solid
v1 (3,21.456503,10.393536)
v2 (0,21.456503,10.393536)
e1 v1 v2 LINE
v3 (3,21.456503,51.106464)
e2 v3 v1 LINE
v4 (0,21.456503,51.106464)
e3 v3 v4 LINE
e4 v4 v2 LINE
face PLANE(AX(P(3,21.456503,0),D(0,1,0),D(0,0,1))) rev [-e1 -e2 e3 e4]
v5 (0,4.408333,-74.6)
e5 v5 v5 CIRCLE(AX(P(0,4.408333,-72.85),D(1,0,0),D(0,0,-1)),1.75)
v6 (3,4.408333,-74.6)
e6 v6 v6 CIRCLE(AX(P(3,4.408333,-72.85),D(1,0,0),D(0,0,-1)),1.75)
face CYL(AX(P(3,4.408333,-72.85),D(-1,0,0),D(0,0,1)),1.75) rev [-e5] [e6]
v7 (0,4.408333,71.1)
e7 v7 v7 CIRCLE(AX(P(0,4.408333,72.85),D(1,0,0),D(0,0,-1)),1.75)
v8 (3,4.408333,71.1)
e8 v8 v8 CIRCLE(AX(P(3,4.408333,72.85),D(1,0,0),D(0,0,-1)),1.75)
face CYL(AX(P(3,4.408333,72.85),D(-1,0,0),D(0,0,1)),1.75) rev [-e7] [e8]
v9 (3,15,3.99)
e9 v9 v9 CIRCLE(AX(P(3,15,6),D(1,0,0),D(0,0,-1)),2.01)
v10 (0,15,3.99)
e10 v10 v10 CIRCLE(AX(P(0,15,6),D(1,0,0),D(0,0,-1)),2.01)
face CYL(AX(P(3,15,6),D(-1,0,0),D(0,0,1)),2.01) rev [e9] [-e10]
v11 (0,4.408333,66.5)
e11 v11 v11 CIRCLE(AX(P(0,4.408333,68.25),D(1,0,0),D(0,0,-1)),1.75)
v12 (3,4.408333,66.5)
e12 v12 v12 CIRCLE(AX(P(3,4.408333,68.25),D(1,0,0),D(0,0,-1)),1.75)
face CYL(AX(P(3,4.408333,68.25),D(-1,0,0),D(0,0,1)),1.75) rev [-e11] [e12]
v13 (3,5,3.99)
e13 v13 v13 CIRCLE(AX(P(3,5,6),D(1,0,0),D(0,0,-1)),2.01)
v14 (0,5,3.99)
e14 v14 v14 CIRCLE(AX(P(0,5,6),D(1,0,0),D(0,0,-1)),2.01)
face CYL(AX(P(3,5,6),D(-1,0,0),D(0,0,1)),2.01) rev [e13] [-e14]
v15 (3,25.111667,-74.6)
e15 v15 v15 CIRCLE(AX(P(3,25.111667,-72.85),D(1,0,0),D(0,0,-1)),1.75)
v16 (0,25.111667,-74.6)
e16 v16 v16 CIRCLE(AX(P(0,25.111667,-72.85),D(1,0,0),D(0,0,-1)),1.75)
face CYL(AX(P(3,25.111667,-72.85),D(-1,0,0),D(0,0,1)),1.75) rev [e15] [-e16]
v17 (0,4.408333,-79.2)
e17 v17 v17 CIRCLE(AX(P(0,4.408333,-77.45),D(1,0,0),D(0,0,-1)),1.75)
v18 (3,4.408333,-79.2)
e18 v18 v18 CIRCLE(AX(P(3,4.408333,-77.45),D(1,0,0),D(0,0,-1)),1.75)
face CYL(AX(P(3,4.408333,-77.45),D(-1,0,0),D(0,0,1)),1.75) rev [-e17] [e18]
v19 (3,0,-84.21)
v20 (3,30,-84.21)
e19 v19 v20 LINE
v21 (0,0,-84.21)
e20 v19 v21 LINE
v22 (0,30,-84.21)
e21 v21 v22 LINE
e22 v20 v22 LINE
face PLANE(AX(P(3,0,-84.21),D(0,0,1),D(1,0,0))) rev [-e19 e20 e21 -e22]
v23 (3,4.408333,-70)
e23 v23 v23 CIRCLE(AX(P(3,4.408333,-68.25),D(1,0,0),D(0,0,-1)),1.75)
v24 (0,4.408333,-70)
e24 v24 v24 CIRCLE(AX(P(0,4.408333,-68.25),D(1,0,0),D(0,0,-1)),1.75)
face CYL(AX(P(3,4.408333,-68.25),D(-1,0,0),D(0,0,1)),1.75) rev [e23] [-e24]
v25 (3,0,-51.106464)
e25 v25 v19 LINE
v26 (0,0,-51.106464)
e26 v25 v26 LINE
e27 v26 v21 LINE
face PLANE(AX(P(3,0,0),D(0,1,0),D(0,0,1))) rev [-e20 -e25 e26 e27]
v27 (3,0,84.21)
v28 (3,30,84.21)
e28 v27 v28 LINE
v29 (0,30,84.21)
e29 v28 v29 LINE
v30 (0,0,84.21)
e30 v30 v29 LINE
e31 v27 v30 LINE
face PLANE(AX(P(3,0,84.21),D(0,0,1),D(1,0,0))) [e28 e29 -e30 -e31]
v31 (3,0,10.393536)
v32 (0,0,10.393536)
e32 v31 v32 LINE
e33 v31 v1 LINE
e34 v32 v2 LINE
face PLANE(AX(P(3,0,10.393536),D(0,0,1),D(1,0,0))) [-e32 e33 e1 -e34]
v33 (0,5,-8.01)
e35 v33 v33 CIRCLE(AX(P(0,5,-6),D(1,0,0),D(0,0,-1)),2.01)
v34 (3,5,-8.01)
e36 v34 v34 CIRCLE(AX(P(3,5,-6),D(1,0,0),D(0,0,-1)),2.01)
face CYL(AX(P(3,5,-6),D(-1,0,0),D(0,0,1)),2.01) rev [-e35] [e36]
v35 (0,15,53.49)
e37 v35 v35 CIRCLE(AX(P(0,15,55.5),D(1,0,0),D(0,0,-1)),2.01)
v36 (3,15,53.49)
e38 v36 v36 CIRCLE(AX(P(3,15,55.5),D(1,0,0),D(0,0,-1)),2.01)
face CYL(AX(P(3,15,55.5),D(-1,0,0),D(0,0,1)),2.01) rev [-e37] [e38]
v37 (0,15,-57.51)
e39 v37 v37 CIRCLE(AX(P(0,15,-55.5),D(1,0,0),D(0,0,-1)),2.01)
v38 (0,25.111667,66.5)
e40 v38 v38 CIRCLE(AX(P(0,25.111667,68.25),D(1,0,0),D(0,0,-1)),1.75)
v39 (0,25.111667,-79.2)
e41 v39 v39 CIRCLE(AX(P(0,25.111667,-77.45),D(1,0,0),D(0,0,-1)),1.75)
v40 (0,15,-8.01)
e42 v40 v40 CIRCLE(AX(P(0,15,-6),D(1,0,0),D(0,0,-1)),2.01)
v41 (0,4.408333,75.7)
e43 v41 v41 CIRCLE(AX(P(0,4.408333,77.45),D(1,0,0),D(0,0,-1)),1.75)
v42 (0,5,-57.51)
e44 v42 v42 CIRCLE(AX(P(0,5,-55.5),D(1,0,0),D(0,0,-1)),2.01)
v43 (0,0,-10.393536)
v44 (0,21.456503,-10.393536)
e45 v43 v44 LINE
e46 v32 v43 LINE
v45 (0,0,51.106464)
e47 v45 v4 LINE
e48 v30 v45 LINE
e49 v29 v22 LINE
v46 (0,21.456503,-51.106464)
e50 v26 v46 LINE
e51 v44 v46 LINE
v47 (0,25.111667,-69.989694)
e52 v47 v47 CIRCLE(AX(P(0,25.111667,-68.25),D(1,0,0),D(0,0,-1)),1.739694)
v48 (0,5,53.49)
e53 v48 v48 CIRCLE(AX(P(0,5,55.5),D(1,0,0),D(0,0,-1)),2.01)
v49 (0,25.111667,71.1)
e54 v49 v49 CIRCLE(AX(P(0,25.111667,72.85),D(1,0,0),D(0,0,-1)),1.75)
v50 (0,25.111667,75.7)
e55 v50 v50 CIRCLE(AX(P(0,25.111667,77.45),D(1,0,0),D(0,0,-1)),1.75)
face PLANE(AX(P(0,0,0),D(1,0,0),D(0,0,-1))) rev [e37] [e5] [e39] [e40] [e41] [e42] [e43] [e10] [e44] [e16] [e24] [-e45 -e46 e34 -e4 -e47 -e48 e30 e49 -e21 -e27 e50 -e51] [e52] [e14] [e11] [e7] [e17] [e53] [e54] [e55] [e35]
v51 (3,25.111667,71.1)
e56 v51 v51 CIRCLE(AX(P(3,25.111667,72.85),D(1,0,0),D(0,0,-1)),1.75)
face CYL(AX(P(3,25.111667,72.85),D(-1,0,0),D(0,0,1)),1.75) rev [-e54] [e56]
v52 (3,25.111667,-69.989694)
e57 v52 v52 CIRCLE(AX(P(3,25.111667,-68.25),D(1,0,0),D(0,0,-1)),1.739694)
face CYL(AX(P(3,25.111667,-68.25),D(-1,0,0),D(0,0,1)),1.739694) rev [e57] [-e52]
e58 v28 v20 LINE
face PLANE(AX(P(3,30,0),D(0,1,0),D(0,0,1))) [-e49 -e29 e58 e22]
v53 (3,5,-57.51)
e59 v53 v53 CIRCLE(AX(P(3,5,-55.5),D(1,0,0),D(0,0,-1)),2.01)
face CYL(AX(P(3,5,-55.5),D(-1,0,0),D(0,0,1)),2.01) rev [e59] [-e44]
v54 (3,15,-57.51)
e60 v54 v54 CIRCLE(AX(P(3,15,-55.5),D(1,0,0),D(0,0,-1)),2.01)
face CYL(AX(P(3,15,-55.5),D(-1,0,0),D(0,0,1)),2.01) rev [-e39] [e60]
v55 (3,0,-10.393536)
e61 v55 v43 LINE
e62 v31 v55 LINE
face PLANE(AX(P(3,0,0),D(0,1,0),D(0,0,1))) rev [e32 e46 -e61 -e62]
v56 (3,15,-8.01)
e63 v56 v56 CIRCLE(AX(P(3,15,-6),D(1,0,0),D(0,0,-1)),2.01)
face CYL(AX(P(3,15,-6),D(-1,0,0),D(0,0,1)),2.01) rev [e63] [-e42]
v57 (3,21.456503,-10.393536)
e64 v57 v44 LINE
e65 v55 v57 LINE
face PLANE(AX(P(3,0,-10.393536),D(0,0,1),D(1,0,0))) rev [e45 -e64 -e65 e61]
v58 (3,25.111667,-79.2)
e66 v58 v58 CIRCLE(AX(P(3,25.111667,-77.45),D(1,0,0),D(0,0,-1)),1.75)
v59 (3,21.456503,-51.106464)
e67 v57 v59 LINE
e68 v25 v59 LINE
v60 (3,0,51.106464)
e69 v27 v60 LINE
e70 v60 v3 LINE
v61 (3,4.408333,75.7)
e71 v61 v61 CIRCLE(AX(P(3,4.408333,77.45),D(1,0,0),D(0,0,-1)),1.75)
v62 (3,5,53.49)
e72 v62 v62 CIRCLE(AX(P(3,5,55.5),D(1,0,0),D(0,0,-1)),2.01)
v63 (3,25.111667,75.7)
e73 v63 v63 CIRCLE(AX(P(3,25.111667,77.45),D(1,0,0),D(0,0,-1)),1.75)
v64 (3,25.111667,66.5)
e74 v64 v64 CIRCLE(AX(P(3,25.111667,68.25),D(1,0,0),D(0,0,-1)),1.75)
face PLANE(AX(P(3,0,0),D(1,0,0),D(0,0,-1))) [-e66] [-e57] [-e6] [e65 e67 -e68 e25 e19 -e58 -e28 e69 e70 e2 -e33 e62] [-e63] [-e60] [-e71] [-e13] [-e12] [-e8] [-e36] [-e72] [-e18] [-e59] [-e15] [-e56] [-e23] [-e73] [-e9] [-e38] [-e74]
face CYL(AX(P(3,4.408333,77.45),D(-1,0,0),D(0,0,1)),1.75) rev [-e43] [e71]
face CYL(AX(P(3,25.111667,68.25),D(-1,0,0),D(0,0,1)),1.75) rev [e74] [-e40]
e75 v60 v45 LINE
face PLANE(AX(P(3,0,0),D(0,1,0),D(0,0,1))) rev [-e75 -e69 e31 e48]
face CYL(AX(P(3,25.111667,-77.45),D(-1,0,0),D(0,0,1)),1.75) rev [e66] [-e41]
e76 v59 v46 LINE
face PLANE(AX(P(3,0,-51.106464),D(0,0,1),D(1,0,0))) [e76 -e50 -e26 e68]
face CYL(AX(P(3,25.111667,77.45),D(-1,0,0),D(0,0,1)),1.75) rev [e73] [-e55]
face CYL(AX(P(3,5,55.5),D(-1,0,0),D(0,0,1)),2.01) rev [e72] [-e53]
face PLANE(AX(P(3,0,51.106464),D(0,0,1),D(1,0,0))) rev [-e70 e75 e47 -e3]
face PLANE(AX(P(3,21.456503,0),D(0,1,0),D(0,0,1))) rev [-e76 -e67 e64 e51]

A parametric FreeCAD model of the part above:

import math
import FreeCAD as App
import Part
import Sketcher
from FreeCAD import Vector

doc = App.newDocument("Part")
params = doc.addObject("Spreadsheet::Sheet", "Params")
for row, (alias, value) in enumerate([
    ("sketch1_diameter", "3.5 mm"),
    ("sketch1_diameter2", "4.02 mm"),
    ("sketch1_width", "30 mm"),
    ("sketch1_height", "168.42 mm"),
    ("pad1_length", "3 mm"),
    ("pad2_length", "3 mm"),
], start=1):
    params.set(f"A{row}", alias)
    params.set(f"B{row}", "=" + value)
    params.setAlias(f"B{row}", alias)

body = doc.addObject("PartDesign::Body", "Body")

# Sketch on YZ plane
sketch1 = body.newObject("Sketcher::SketchObject", "Sketch")
sketch1.AttachmentSupport = (doc.getObject("YZ_Plane"), [""])
sketch1.MapMode = "FlatFace"
sketch1.addGeometry([
    Part.LineSegment(Vector(21.46, -51.11, 0), Vector(0, -51.11, 0)),  # 0
    Part.LineSegment(Vector(0, -51.11, 0), Vector(0, -84.21, 0)),  # 1
    Part.LineSegment(Vector(0, -84.21, 0), Vector(30, -84.21, 0)),  # 2
    Part.LineSegment(Vector(30, -84.21, 0), Vector(30, 84.21, 0)),  # 3
    Part.LineSegment(Vector(30, 84.21, 0), Vector(0, 84.21, 0)),  # 4
    Part.LineSegment(Vector(0, 84.21, 0), Vector(0, 51.11, 0)),  # 5
    Part.LineSegment(Vector(0, 51.11, 0), Vector(21.46, 51.11, 0)),  # 6
    Part.LineSegment(Vector(21.46, 51.11, 0), Vector(21.46, 10.39, 0)),  # 7
    Part.LineSegment(Vector(21.46, 10.39, 0), Vector(0, 10.39, 0)),  # 8
    Part.LineSegment(Vector(0, 10.39, 0), Vector(0, -10.39, 0)),  # 9
    Part.LineSegment(Vector(0, -10.39, 0), Vector(21.46, -10.39, 0)),  # 10
    Part.LineSegment(Vector(21.46, -10.39, 0), Vector(21.46, -51.11, 0)),  # 11
    Part.Circle(Vector(4.41, 77.45, 0), Vector(0, 0, 1), 1.75),  # 12
    Part.Circle(Vector(4.41, 72.85, 0), Vector(0, 0, 1), 1.75),  # 13
    Part.Circle(Vector(4.41, 68.25, 0), Vector(0, 0, 1), 1.75),  # 14
    Part.Circle(Vector(5, 55.5, 0), Vector(0, 0, 1), 2.01),  # 15
    Part.Circle(Vector(5, 6, 0), Vector(0, 0, 1), 2.01),  # 16
    Part.Circle(Vector(5, -6, 0), Vector(0, 0, 1), 2.01),  # 17
    Part.Circle(Vector(5, -55.5, 0), Vector(0, 0, 1), 2.01),  # 18
    Part.Circle(Vector(4.41, -68.25, 0), Vector(0, 0, 1), 1.75),  # 19
    Part.Circle(Vector(4.41, -72.85, 0), Vector(0, 0, 1), 1.75),  # 20
    Part.Circle(Vector(4.41, -77.45, 0), Vector(0, 0, 1), 1.75),  # 21
    Part.Circle(Vector(15, 55.5, 0), Vector(0, 0, 1), 2.01),  # 22
    Part.Circle(Vector(15, 6, 0), Vector(0, 0, 1), 2.01),  # 23
    Part.Circle(Vector(25.11, 77.45, 0), Vector(0, 0, 1), 1.75),  # 24
    Part.Circle(Vector(25.11, 72.85, 0), Vector(0, 0, 1), 1.75),  # 25
    Part.Circle(Vector(25.11, 68.25, 0), Vector(0, 0, 1), 1.75),  # 26
    Part.Circle(Vector(15, -6, 0), Vector(0, 0, 1), 2.01),  # 27
    Part.Circle(Vector(15, -55.5, 0), Vector(0, 0, 1), 2.01),  # 28
    Part.LineSegment(Vector(23.37, -68.25, 0), Vector(23.12, -68.25, 0)),  # 29
    Part.LineSegment(Vector(23.12, -68.25, 0), Vector(22.8, -66.79, 0)),  # 30
    Part.LineSegment(Vector(22.8, -66.79, 0), Vector(23.64, -67.32, 0)),  # 31
    Part.ArcOfCircle(Part.Circle(Vector(25.11, -68.25, 0), Vector(0, 0, 1), 1.74), math.radians(180), math.radians(508)),  # 32
    Part.Circle(Vector(25.11, -72.85, 0), Vector(0, 0, 1), 1.75),  # 33
    Part.Circle(Vector(25.11, -77.45, 0), Vector(0, 0, 1), 1.75),  # 34
], False)
sketch1.addConstraint([
    Sketcher.Constraint("Coincident", 0, 2, 1, 1),
    Sketcher.Constraint("Coincident", 1, 2, 2, 1),
    Sketcher.Constraint("Coincident", 2, 2, 3, 1),
    Sketcher.Constraint("Coincident", 3, 2, 4, 1),
    Sketcher.Constraint("Coincident", 4, 2, 5, 1),
    Sketcher.Constraint("Coincident", 5, 2, 6, 1),
    Sketcher.Constraint("Coincident", 6, 2, 7, 1),
    Sketcher.Constraint("Coincident", 7, 2, 8, 1),
    Sketcher.Constraint("Coincident", 8, 2, 9, 1),
    Sketcher.Constraint("Coincident", 9, 2, 10, 1),
    Sketcher.Constraint("Coincident", 10, 2, 11, 1),
    Sketcher.Constraint("Coincident", 11, 2, 0, 1),
    Sketcher.Constraint("Coincident", 29, 2, 30, 1),
    Sketcher.Constraint("Coincident", 30, 2, 31, 1),
    Sketcher.Constraint("Coincident", 31, 2, 32, 2),
    Sketcher.Constraint("Coincident", 32, 1, 29, 1),
    Sketcher.Constraint("Horizontal", 0),
    Sketcher.Constraint("Vertical", 1),
    Sketcher.Constraint("Horizontal", 2),
    Sketcher.Constraint("Vertical", 3),
    Sketcher.Constraint("Horizontal", 4),
    Sketcher.Constraint("Vertical", 5),
    Sketcher.Constraint("Horizontal", 6),
    Sketcher.Constraint("Vertical", 7),
    Sketcher.Constraint("Horizontal", 8),
    Sketcher.Constraint("Vertical", 9),
    Sketcher.Constraint("Horizontal", 10),
    Sketcher.Constraint("Vertical", 11),
    Sketcher.Constraint("Horizontal", 29),
    Sketcher.Constraint("Equal", 12, 13),
    Sketcher.Constraint("Equal", 13, 14),
    Sketcher.Constraint("Equal", 15, 16),
    Sketcher.Constraint("Equal", 16, 17),
    Sketcher.Constraint("Equal", 17, 18),
    Sketcher.Constraint("Equal", 14, 19),
    Sketcher.Constraint("Equal", 19, 20),
    Sketcher.Constraint("Equal", 20, 21),
    Sketcher.Constraint("Equal", 18, 22),
    Sketcher.Constraint("Equal", 22, 23),
    Sketcher.Constraint("Equal", 21, 24),
    Sketcher.Constraint("Equal", 24, 25),
    Sketcher.Constraint("Equal", 25, 26),
    Sketcher.Constraint("Equal", 23, 27),
    Sketcher.Constraint("Equal", 27, 28),
    Sketcher.Constraint("Equal", 26, 33),
    Sketcher.Constraint("Equal", 33, 34),
    Sketcher.Constraint("Symmetric", 1, 2, 4, 2, -1, 1),
    Sketcher.Constraint("Symmetric", 8, 2, 9, 2, -1, 1),
    Sketcher.Constraint("Symmetric", 16, 3, 17, 3, -1),
    Sketcher.Constraint("Symmetric", 15, 3, 18, 3, -1),
    Sketcher.Constraint("Symmetric", 14, 3, 19, 3, -1),
    Sketcher.Constraint("Symmetric", 13, 3, 20, 3, -1),
    Sketcher.Constraint("Symmetric", 12, 3, 21, 3, -1),
    Sketcher.Constraint("Symmetric", 23, 3, 27, 3, -1),
    Sketcher.Constraint("Symmetric", 22, 3, 28, 3, -1),
    Sketcher.Constraint("Symmetric", 26, 3, 32, 3, -1),
    Sketcher.Constraint("Symmetric", 25, 3, 33, 3, -1),
    Sketcher.Constraint("Symmetric", 24, 3, 34, 3, -1),
    Sketcher.Constraint("Symmetric", 0, 2, 5, 2, -1),
    Sketcher.Constraint("Horizontal", 15, 3, 22, 3),
    Sketcher.Constraint("Horizontal", 16, 3, 23, 3),
    Sketcher.Constraint("Horizontal", 12, 3, 24, 3),
    Sketcher.Constraint("Horizontal", 13, 3, 25, 3),
    Sketcher.Constraint("Horizontal", 14, 3, 26, 3),
    Sketcher.Constraint("Horizontal", 32, 3, 29, 2),
    Sketcher.Constraint("Vertical", 12, 3, 13, 3),
    Sketcher.Constraint("Vertical", 13, 3, 14, 3),
    Sketcher.Constraint("Vertical", 15, 3, 16, 3),
    Sketcher.Constraint("Vertical", 22, 3, 23, 3),
    Sketcher.Constraint("Vertical", 24, 3, 25, 3),
    Sketcher.Constraint("Vertical", 25, 3, 26, 3),
    Sketcher.Constraint("Vertical", 7, 2, 10, 2),
    Sketcher.Constraint("Diameter", 12, 3.5),
    Sketcher.Constraint("Diameter", 15, 4.02),
    Sketcher.Constraint("DistanceX", 2, 1, 2, 2, 30.0),
    Sketcher.Constraint("DistanceX", -1, 1, 15, 3, 5.0),
    Sketcher.Constraint("DistanceY", -1, 1, 16, 3, 6.0),
    Sketcher.Constraint("DistanceX", -1, 1, 22, 3, 15.0),
    Sketcher.Constraint("DistanceY", 18, 3, 15, 3, 111.0),
    Sketcher.Constraint("DistanceY", 3, 1, 3, 2, 168.42),
    Sketcher.Constraint("DistanceY", 13, 3, 12, 3, 4.6),
    Sketcher.Constraint("DistanceY", 14, 3, 13, 3, 4.6),
    Sketcher.Constraint("DistanceY", 19, 3, 14, 3, 136.5),
    Sketcher.Constraint("Radius", 32, 1.739694),
    Sketcher.Constraint("DistanceX", -1, 1, 30, 2, 22.8027),
    Sketcher.Constraint("Distance", 31, 0.99417),
    Sketcher.Constraint("DistanceX", 0, 2, 0, 1, 21.456503),
    Sketcher.Constraint("DistanceX", 29, 2, 29, 1, 0.252326),
    Sketcher.Constraint("DistanceY", 1, 2, 1, 1, 33.103536),
    Sketcher.Constraint("DistanceY", 7, 2, 7, 1, 40.712927),
    Sketcher.Constraint("DistanceY", 31, 2, 30, 2, 0.532309),
    Sketcher.Constraint("DistanceX", 29, 2, 31, 2, 0.52271),
    Sketcher.Constraint("DistanceX", -1, 1, 12, 3, 4.408333),
])
sketch1.setExpression("Constraints[72]", "Params.sketch1_diameter")
sketch1.setExpression("Constraints[73]", "Params.sketch1_diameter2")
sketch1.setExpression("Constraints[74]", "Params.sketch1_width")
sketch1.setExpression("Constraints[79]", "Params.sketch1_height")
pad1 = body.newObject("PartDesign::Pad", "Pad")
pad1.Profile = sketch1
pad1.setExpression("Length", "Params.pad1_length")

# Sketch on YZ plane
sketch2 = body.newObject("Sketcher::SketchObject", "Sketch001")
sketch2.AttachmentSupport = (doc.getObject("YZ_Plane"), [""])
sketch2.MapMode = "FlatFace"
sketch2.addGeometry([
    Part.LineSegment(Vector(23.371972, -68.25, 0), Vector(23.119647, -68.25, 0)),  # 0
    Part.LineSegment(Vector(23.119647, -68.25, 0), Vector(22.811262, -66.825746, 0)),  # 1
    Part.LineSegment(Vector(22.811262, -66.825746, 0), Vector(22.8027, -66.786207, 0)),  # 2
    Part.LineSegment(Vector(22.8027, -66.786207, 0), Vector(23.642356, -67.318515, 0)),  # 3
    Part.ArcOfCircle(Part.Circle(Vector(25.111667, -68.25, 0), Vector(0, 0, 1), 1.739694), math.radians(147.626921), math.radians(180)),  # 4
], False)
sketch2.addConstraint([
    Sketcher.Constraint("Coincident", 0, 2, 1, 1),
    Sketcher.Constraint("Coincident", 1, 2, 2, 1),
    Sketcher.Constraint("Coincident", 2, 2, 3, 1),
    Sketcher.Constraint("Coincident", 3, 2, 4, 1),
    Sketcher.Constraint("Coincident", 4, 2, 0, 1),
    Sketcher.Constraint("Horizontal", 0),
    Sketcher.Constraint("DistanceY", 4, 3, -1, 1, 68.25),
    Sketcher.Constraint("DistanceY", 0, 2, -1, 1, 68.25),
    Sketcher.Constraint("Radius", 4, 1.739694),
    Sketcher.Constraint("DistanceX", -1, 1, 2, 2, 22.8027),
    Sketcher.Constraint("Distance", 3, 0.99417),
    Sketcher.Constraint("DistanceX", 0, 2, 0, 1, 0.252326),
    Sketcher.Constraint("DistanceX", -1, 1, 1, 2, 22.811262),
    Sketcher.Constraint("DistanceY", 1, 2, 2, 2, 0.039539),
    Sketcher.Constraint("DistanceY", 3, 2, 1, 2, 0.492769),
    Sketcher.Constraint("DistanceX", 0, 2, 3, 2, 0.52271),
])
pad2 = body.newObject("PartDesign::Pad", "Pad001")
pad2.Profile = sketch2
pad2.setExpression("Length", "Params.pad2_length")

doc.recompute()
